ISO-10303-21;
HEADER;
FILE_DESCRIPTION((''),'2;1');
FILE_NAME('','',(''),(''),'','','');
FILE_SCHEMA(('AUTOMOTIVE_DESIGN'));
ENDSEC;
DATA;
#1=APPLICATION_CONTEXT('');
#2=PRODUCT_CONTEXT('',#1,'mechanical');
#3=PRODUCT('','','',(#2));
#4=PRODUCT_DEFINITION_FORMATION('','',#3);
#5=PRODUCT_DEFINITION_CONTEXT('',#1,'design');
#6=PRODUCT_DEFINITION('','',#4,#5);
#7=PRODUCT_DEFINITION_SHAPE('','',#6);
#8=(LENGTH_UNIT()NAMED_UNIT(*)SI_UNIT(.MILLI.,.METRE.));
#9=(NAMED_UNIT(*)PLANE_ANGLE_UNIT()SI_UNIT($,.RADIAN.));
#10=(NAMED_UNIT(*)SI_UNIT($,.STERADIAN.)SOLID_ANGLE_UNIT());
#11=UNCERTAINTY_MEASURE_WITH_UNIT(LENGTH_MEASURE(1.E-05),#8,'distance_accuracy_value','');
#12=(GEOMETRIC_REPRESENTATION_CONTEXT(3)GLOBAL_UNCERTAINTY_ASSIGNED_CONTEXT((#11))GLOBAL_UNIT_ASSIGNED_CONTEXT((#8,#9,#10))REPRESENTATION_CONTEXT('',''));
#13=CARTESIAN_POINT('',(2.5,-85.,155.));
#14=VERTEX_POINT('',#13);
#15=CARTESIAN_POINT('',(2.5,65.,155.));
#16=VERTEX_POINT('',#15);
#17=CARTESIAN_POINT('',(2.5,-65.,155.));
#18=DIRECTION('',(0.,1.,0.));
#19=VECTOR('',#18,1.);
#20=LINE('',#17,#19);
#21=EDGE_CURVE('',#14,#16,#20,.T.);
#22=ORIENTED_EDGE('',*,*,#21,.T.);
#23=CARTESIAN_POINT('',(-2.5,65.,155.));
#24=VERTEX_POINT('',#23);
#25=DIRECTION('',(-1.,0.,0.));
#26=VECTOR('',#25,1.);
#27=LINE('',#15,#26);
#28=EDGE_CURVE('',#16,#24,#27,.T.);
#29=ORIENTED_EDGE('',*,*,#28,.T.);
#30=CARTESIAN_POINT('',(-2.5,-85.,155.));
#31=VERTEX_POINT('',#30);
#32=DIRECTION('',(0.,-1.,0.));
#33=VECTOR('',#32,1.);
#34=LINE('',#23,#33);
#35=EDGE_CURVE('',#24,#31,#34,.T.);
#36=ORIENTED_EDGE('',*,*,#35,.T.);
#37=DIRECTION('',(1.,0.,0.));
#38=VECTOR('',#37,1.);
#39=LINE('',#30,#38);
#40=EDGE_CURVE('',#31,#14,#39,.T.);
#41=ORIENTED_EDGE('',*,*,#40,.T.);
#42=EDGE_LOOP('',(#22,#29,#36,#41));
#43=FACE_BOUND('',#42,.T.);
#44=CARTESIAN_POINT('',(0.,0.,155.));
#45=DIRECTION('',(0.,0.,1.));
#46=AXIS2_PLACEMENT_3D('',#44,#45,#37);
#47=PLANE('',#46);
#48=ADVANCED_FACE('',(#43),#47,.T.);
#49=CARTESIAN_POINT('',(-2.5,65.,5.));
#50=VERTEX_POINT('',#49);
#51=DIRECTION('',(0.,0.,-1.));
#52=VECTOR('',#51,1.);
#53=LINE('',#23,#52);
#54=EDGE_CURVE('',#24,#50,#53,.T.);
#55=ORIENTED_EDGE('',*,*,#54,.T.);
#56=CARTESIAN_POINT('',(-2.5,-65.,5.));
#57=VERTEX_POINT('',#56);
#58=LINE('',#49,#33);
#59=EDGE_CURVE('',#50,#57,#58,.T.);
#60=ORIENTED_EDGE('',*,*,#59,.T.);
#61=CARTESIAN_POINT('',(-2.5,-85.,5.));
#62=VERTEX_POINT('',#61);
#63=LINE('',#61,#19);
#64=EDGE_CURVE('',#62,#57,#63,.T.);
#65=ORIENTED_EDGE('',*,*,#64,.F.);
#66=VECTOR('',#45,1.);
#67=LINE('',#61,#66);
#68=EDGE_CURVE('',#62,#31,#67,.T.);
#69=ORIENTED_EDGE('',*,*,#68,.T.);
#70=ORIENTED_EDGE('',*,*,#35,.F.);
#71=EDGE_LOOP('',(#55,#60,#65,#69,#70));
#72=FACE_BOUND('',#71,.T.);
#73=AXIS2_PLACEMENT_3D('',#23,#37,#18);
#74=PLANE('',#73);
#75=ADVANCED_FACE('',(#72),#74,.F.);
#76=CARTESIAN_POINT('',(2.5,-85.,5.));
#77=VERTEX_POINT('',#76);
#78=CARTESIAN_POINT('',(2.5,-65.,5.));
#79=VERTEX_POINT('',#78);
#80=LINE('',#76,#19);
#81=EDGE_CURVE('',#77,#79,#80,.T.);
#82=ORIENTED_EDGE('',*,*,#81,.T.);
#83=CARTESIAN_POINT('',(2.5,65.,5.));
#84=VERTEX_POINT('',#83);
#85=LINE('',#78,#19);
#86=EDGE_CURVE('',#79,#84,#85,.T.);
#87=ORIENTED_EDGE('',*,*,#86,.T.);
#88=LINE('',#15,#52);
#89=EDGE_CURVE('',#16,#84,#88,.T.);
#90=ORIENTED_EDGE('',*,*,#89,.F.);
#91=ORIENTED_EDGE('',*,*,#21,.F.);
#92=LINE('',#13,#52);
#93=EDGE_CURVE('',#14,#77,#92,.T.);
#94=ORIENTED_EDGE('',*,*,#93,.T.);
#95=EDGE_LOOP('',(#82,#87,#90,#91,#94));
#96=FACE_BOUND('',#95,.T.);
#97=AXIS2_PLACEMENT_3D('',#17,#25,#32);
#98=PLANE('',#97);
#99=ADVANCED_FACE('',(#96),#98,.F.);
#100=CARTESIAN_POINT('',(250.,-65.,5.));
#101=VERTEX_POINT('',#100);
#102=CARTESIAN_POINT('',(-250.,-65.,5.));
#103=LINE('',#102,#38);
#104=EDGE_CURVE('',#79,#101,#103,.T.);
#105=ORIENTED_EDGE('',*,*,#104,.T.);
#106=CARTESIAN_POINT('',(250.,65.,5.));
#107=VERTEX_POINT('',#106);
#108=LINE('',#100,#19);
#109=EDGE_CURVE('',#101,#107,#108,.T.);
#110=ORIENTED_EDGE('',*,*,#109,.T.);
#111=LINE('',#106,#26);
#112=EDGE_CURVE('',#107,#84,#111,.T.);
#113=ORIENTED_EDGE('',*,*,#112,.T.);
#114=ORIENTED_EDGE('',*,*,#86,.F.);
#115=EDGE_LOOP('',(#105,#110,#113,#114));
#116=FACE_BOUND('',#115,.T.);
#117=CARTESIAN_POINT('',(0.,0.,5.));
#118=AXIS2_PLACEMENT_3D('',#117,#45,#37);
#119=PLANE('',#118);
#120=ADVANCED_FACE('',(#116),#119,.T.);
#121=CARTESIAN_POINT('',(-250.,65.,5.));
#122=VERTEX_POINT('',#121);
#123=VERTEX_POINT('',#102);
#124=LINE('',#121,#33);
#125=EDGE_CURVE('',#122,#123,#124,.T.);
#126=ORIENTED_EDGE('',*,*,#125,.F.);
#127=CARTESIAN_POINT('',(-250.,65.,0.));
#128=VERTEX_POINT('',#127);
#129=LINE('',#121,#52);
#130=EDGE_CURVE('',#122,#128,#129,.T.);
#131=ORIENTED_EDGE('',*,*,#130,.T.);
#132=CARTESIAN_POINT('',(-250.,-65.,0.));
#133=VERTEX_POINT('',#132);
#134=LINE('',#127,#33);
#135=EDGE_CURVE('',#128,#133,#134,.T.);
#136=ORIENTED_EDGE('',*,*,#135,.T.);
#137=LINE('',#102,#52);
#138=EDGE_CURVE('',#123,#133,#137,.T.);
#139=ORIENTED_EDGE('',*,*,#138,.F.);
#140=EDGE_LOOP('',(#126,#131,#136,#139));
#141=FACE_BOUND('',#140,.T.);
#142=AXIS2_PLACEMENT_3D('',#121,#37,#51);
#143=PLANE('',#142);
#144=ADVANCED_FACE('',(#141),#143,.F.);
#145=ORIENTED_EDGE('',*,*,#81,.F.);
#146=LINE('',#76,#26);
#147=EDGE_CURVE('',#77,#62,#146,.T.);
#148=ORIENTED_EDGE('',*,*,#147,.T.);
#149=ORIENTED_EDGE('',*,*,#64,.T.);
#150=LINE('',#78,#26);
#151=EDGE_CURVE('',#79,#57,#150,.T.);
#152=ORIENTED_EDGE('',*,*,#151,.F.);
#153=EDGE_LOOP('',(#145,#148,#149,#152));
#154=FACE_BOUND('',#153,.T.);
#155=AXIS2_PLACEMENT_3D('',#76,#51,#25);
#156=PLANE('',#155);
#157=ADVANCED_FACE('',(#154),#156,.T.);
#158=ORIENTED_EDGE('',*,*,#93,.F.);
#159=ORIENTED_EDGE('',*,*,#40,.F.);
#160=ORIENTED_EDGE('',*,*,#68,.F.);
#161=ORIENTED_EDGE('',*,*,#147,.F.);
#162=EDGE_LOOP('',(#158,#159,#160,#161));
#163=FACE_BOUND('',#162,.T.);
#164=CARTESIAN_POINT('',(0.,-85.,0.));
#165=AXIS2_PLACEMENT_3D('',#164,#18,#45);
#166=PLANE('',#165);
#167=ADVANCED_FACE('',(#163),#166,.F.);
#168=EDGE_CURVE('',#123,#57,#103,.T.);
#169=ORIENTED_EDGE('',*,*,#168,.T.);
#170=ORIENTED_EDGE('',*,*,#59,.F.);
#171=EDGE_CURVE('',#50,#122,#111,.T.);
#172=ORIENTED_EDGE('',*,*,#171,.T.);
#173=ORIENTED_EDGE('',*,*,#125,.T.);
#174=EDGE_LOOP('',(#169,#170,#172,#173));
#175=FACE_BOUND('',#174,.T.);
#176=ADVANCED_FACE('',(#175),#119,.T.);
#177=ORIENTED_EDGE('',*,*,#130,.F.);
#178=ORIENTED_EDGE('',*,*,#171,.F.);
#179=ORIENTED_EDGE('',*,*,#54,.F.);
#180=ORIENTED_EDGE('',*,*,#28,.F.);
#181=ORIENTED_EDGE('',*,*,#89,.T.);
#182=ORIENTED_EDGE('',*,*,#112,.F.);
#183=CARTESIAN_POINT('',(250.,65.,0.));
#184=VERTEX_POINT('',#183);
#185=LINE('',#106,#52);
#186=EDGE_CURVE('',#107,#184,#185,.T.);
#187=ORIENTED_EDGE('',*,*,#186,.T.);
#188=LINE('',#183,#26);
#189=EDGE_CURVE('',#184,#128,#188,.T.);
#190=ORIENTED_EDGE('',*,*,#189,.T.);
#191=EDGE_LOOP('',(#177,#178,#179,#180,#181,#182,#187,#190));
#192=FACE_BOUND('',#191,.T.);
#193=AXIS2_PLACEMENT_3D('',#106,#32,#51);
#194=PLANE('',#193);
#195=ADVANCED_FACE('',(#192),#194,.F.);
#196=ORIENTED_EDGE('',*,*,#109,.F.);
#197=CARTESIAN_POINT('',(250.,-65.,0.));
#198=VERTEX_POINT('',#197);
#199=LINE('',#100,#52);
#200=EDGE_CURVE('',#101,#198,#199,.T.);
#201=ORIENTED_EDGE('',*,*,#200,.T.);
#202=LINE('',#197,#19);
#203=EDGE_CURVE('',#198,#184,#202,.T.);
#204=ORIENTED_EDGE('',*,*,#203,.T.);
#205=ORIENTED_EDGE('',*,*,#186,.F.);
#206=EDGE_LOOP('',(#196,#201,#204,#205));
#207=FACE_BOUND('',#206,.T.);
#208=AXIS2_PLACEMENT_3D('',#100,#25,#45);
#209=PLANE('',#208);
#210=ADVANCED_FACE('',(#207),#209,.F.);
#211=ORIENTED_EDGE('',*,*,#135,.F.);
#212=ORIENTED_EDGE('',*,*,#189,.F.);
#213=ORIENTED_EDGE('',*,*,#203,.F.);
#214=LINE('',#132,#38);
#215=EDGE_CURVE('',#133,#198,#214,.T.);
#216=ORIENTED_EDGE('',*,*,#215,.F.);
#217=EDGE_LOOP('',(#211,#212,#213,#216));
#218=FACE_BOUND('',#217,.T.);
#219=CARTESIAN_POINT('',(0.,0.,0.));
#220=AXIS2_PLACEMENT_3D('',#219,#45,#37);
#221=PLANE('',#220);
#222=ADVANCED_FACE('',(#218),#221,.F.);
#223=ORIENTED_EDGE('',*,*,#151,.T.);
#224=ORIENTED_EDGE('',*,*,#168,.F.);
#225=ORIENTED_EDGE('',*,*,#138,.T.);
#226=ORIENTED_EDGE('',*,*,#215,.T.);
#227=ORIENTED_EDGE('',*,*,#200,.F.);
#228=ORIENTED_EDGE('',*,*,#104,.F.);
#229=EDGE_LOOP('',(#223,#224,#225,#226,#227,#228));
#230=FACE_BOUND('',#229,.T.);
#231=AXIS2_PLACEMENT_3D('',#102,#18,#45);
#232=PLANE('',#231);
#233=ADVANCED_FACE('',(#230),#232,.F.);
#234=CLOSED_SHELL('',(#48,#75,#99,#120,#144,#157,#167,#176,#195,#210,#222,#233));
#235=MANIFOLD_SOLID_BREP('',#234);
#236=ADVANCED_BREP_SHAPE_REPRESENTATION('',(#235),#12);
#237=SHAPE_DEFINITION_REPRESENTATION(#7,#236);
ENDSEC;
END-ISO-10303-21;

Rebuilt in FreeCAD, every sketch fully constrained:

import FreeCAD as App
import Part
import Sketcher
from FreeCAD import Vector
Q = App.Units.Quantity


def add_polygon(sketch, points):
    """Adds a closed chain of lines whose ends are joined by coincident constraints."""
    first, n = sketch.GeometryCount, len(points)
    for a, b in zip(points, points[1:] + points[:1]):
        sketch.addGeometry(Part.LineSegment(App.Vector(*a, 0), App.Vector(*b, 0)), False)
    for i in range(n):
        sketch.addConstraint(Sketcher.Constraint("Coincident", first + i, 2, first + (i + 1) % n, 1))

doc = App.newDocument("Part")
body = doc.addObject("PartDesign::Body", "Body")

# Sketch on XY plane
sketch1 = body.newObject("Sketcher::SketchObject", "Sketch")
sketch1.AttachmentSupport = (doc.getObject("XY_Plane"), [""])
sketch1.MapMode = "FlatFace"
add_polygon(sketch1, [(-250, 65), (-250, -65), (250, -65), (250, 65)])  # lines 0-3
sketch1.addConstraint([
    Sketcher.Constraint("Vertical", 0),
    Sketcher.Constraint("Horizontal", 1),
    Sketcher.Constraint("Vertical", 2),
    Sketcher.Constraint("Horizontal", 3),
    Sketcher.Constraint("Symmetric", 0, 2, 2, 2, -1, 1),
    Sketcher.Constraint("DistanceX", 1, 1, 1, 2, Q("500 mm")),
    Sketcher.Constraint("DistanceY", 0, 2, 0, 1, Q("130 mm")),
])
pad1 = body.newObject("PartDesign::Pad", "Pad")
pad1.Profile = sketch1
pad1.Length = 5

# Sketch on XY plane
sketch2 = body.newObject("Sketcher::SketchObject", "Sketch001")
sketch2.AttachmentSupport = (doc.getObject("XY_Plane"), [""])
sketch2.MapMode = "FlatFace"
sketch2.AttachmentOffset = App.Placement(Vector(0, 0, 5), App.Rotation())
add_polygon(sketch2, [(-2, 65), (-2, -65), (2, -65), (2, 65)])  # lines 0-3
sketch2.addConstraint([
    Sketcher.Constraint("Vertical", 0),
    Sketcher.Constraint("Horizontal", 1),
    Sketcher.Constraint("Vertical", 2),
    Sketcher.Constraint("Horizontal", 3),
    Sketcher.Constraint("Symmetric", 0, 2, 2, 2, -1, 1),
    Sketcher.Constraint("DistanceX", 1, 1, 1, 2, Q("5 mm")),
    Sketcher.Constraint("DistanceY", 0, 2, 0, 1, Q("130 mm")),
])
pad2 = body.newObject("PartDesign::Pad", "Pad001")
pad2.Profile = sketch2
pad2.Length = 150

# Sketch on XZ plane
sketch3 = body.newObject("Sketcher::SketchObject", "Sketch002")
sketch3.AttachmentSupport = (doc.getObject("XZ_Plane"), [""])
sketch3.MapMode = "FlatFace"
sketch3.AttachmentOffset = App.Placement(Vector(0, 0, 65), App.Rotation())
add_polygon(sketch3, [(2, 5), (2, 155), (-2, 155), (-2, 5)])  # lines 0-3
sketch3.addConstraint([
    Sketcher.Constraint("Vertical", 0),
    Sketcher.Constraint("Horizontal", 1),
    Sketcher.Constraint("Vertical", 2),
    Sketcher.Constraint("Horizontal", 3),
    Sketcher.Constraint("DistanceX", 1, 2, 1, 1, Q("5 mm")),
    Sketcher.Constraint("DistanceY", 0, 1, 0, 2, Q("150 mm")),
    Sketcher.Constraint("DistanceY", -1, 1, 0, 2, Q("155 mm")),
    Sketcher.Constraint("DistanceX", -1, 1, 0, 2, Q("2.5 mm")),
])
pad3 = body.newObject("PartDesign::Pad", "Pad002")
pad3.Profile = sketch3
pad3.Length = 20

doc.recompute()
